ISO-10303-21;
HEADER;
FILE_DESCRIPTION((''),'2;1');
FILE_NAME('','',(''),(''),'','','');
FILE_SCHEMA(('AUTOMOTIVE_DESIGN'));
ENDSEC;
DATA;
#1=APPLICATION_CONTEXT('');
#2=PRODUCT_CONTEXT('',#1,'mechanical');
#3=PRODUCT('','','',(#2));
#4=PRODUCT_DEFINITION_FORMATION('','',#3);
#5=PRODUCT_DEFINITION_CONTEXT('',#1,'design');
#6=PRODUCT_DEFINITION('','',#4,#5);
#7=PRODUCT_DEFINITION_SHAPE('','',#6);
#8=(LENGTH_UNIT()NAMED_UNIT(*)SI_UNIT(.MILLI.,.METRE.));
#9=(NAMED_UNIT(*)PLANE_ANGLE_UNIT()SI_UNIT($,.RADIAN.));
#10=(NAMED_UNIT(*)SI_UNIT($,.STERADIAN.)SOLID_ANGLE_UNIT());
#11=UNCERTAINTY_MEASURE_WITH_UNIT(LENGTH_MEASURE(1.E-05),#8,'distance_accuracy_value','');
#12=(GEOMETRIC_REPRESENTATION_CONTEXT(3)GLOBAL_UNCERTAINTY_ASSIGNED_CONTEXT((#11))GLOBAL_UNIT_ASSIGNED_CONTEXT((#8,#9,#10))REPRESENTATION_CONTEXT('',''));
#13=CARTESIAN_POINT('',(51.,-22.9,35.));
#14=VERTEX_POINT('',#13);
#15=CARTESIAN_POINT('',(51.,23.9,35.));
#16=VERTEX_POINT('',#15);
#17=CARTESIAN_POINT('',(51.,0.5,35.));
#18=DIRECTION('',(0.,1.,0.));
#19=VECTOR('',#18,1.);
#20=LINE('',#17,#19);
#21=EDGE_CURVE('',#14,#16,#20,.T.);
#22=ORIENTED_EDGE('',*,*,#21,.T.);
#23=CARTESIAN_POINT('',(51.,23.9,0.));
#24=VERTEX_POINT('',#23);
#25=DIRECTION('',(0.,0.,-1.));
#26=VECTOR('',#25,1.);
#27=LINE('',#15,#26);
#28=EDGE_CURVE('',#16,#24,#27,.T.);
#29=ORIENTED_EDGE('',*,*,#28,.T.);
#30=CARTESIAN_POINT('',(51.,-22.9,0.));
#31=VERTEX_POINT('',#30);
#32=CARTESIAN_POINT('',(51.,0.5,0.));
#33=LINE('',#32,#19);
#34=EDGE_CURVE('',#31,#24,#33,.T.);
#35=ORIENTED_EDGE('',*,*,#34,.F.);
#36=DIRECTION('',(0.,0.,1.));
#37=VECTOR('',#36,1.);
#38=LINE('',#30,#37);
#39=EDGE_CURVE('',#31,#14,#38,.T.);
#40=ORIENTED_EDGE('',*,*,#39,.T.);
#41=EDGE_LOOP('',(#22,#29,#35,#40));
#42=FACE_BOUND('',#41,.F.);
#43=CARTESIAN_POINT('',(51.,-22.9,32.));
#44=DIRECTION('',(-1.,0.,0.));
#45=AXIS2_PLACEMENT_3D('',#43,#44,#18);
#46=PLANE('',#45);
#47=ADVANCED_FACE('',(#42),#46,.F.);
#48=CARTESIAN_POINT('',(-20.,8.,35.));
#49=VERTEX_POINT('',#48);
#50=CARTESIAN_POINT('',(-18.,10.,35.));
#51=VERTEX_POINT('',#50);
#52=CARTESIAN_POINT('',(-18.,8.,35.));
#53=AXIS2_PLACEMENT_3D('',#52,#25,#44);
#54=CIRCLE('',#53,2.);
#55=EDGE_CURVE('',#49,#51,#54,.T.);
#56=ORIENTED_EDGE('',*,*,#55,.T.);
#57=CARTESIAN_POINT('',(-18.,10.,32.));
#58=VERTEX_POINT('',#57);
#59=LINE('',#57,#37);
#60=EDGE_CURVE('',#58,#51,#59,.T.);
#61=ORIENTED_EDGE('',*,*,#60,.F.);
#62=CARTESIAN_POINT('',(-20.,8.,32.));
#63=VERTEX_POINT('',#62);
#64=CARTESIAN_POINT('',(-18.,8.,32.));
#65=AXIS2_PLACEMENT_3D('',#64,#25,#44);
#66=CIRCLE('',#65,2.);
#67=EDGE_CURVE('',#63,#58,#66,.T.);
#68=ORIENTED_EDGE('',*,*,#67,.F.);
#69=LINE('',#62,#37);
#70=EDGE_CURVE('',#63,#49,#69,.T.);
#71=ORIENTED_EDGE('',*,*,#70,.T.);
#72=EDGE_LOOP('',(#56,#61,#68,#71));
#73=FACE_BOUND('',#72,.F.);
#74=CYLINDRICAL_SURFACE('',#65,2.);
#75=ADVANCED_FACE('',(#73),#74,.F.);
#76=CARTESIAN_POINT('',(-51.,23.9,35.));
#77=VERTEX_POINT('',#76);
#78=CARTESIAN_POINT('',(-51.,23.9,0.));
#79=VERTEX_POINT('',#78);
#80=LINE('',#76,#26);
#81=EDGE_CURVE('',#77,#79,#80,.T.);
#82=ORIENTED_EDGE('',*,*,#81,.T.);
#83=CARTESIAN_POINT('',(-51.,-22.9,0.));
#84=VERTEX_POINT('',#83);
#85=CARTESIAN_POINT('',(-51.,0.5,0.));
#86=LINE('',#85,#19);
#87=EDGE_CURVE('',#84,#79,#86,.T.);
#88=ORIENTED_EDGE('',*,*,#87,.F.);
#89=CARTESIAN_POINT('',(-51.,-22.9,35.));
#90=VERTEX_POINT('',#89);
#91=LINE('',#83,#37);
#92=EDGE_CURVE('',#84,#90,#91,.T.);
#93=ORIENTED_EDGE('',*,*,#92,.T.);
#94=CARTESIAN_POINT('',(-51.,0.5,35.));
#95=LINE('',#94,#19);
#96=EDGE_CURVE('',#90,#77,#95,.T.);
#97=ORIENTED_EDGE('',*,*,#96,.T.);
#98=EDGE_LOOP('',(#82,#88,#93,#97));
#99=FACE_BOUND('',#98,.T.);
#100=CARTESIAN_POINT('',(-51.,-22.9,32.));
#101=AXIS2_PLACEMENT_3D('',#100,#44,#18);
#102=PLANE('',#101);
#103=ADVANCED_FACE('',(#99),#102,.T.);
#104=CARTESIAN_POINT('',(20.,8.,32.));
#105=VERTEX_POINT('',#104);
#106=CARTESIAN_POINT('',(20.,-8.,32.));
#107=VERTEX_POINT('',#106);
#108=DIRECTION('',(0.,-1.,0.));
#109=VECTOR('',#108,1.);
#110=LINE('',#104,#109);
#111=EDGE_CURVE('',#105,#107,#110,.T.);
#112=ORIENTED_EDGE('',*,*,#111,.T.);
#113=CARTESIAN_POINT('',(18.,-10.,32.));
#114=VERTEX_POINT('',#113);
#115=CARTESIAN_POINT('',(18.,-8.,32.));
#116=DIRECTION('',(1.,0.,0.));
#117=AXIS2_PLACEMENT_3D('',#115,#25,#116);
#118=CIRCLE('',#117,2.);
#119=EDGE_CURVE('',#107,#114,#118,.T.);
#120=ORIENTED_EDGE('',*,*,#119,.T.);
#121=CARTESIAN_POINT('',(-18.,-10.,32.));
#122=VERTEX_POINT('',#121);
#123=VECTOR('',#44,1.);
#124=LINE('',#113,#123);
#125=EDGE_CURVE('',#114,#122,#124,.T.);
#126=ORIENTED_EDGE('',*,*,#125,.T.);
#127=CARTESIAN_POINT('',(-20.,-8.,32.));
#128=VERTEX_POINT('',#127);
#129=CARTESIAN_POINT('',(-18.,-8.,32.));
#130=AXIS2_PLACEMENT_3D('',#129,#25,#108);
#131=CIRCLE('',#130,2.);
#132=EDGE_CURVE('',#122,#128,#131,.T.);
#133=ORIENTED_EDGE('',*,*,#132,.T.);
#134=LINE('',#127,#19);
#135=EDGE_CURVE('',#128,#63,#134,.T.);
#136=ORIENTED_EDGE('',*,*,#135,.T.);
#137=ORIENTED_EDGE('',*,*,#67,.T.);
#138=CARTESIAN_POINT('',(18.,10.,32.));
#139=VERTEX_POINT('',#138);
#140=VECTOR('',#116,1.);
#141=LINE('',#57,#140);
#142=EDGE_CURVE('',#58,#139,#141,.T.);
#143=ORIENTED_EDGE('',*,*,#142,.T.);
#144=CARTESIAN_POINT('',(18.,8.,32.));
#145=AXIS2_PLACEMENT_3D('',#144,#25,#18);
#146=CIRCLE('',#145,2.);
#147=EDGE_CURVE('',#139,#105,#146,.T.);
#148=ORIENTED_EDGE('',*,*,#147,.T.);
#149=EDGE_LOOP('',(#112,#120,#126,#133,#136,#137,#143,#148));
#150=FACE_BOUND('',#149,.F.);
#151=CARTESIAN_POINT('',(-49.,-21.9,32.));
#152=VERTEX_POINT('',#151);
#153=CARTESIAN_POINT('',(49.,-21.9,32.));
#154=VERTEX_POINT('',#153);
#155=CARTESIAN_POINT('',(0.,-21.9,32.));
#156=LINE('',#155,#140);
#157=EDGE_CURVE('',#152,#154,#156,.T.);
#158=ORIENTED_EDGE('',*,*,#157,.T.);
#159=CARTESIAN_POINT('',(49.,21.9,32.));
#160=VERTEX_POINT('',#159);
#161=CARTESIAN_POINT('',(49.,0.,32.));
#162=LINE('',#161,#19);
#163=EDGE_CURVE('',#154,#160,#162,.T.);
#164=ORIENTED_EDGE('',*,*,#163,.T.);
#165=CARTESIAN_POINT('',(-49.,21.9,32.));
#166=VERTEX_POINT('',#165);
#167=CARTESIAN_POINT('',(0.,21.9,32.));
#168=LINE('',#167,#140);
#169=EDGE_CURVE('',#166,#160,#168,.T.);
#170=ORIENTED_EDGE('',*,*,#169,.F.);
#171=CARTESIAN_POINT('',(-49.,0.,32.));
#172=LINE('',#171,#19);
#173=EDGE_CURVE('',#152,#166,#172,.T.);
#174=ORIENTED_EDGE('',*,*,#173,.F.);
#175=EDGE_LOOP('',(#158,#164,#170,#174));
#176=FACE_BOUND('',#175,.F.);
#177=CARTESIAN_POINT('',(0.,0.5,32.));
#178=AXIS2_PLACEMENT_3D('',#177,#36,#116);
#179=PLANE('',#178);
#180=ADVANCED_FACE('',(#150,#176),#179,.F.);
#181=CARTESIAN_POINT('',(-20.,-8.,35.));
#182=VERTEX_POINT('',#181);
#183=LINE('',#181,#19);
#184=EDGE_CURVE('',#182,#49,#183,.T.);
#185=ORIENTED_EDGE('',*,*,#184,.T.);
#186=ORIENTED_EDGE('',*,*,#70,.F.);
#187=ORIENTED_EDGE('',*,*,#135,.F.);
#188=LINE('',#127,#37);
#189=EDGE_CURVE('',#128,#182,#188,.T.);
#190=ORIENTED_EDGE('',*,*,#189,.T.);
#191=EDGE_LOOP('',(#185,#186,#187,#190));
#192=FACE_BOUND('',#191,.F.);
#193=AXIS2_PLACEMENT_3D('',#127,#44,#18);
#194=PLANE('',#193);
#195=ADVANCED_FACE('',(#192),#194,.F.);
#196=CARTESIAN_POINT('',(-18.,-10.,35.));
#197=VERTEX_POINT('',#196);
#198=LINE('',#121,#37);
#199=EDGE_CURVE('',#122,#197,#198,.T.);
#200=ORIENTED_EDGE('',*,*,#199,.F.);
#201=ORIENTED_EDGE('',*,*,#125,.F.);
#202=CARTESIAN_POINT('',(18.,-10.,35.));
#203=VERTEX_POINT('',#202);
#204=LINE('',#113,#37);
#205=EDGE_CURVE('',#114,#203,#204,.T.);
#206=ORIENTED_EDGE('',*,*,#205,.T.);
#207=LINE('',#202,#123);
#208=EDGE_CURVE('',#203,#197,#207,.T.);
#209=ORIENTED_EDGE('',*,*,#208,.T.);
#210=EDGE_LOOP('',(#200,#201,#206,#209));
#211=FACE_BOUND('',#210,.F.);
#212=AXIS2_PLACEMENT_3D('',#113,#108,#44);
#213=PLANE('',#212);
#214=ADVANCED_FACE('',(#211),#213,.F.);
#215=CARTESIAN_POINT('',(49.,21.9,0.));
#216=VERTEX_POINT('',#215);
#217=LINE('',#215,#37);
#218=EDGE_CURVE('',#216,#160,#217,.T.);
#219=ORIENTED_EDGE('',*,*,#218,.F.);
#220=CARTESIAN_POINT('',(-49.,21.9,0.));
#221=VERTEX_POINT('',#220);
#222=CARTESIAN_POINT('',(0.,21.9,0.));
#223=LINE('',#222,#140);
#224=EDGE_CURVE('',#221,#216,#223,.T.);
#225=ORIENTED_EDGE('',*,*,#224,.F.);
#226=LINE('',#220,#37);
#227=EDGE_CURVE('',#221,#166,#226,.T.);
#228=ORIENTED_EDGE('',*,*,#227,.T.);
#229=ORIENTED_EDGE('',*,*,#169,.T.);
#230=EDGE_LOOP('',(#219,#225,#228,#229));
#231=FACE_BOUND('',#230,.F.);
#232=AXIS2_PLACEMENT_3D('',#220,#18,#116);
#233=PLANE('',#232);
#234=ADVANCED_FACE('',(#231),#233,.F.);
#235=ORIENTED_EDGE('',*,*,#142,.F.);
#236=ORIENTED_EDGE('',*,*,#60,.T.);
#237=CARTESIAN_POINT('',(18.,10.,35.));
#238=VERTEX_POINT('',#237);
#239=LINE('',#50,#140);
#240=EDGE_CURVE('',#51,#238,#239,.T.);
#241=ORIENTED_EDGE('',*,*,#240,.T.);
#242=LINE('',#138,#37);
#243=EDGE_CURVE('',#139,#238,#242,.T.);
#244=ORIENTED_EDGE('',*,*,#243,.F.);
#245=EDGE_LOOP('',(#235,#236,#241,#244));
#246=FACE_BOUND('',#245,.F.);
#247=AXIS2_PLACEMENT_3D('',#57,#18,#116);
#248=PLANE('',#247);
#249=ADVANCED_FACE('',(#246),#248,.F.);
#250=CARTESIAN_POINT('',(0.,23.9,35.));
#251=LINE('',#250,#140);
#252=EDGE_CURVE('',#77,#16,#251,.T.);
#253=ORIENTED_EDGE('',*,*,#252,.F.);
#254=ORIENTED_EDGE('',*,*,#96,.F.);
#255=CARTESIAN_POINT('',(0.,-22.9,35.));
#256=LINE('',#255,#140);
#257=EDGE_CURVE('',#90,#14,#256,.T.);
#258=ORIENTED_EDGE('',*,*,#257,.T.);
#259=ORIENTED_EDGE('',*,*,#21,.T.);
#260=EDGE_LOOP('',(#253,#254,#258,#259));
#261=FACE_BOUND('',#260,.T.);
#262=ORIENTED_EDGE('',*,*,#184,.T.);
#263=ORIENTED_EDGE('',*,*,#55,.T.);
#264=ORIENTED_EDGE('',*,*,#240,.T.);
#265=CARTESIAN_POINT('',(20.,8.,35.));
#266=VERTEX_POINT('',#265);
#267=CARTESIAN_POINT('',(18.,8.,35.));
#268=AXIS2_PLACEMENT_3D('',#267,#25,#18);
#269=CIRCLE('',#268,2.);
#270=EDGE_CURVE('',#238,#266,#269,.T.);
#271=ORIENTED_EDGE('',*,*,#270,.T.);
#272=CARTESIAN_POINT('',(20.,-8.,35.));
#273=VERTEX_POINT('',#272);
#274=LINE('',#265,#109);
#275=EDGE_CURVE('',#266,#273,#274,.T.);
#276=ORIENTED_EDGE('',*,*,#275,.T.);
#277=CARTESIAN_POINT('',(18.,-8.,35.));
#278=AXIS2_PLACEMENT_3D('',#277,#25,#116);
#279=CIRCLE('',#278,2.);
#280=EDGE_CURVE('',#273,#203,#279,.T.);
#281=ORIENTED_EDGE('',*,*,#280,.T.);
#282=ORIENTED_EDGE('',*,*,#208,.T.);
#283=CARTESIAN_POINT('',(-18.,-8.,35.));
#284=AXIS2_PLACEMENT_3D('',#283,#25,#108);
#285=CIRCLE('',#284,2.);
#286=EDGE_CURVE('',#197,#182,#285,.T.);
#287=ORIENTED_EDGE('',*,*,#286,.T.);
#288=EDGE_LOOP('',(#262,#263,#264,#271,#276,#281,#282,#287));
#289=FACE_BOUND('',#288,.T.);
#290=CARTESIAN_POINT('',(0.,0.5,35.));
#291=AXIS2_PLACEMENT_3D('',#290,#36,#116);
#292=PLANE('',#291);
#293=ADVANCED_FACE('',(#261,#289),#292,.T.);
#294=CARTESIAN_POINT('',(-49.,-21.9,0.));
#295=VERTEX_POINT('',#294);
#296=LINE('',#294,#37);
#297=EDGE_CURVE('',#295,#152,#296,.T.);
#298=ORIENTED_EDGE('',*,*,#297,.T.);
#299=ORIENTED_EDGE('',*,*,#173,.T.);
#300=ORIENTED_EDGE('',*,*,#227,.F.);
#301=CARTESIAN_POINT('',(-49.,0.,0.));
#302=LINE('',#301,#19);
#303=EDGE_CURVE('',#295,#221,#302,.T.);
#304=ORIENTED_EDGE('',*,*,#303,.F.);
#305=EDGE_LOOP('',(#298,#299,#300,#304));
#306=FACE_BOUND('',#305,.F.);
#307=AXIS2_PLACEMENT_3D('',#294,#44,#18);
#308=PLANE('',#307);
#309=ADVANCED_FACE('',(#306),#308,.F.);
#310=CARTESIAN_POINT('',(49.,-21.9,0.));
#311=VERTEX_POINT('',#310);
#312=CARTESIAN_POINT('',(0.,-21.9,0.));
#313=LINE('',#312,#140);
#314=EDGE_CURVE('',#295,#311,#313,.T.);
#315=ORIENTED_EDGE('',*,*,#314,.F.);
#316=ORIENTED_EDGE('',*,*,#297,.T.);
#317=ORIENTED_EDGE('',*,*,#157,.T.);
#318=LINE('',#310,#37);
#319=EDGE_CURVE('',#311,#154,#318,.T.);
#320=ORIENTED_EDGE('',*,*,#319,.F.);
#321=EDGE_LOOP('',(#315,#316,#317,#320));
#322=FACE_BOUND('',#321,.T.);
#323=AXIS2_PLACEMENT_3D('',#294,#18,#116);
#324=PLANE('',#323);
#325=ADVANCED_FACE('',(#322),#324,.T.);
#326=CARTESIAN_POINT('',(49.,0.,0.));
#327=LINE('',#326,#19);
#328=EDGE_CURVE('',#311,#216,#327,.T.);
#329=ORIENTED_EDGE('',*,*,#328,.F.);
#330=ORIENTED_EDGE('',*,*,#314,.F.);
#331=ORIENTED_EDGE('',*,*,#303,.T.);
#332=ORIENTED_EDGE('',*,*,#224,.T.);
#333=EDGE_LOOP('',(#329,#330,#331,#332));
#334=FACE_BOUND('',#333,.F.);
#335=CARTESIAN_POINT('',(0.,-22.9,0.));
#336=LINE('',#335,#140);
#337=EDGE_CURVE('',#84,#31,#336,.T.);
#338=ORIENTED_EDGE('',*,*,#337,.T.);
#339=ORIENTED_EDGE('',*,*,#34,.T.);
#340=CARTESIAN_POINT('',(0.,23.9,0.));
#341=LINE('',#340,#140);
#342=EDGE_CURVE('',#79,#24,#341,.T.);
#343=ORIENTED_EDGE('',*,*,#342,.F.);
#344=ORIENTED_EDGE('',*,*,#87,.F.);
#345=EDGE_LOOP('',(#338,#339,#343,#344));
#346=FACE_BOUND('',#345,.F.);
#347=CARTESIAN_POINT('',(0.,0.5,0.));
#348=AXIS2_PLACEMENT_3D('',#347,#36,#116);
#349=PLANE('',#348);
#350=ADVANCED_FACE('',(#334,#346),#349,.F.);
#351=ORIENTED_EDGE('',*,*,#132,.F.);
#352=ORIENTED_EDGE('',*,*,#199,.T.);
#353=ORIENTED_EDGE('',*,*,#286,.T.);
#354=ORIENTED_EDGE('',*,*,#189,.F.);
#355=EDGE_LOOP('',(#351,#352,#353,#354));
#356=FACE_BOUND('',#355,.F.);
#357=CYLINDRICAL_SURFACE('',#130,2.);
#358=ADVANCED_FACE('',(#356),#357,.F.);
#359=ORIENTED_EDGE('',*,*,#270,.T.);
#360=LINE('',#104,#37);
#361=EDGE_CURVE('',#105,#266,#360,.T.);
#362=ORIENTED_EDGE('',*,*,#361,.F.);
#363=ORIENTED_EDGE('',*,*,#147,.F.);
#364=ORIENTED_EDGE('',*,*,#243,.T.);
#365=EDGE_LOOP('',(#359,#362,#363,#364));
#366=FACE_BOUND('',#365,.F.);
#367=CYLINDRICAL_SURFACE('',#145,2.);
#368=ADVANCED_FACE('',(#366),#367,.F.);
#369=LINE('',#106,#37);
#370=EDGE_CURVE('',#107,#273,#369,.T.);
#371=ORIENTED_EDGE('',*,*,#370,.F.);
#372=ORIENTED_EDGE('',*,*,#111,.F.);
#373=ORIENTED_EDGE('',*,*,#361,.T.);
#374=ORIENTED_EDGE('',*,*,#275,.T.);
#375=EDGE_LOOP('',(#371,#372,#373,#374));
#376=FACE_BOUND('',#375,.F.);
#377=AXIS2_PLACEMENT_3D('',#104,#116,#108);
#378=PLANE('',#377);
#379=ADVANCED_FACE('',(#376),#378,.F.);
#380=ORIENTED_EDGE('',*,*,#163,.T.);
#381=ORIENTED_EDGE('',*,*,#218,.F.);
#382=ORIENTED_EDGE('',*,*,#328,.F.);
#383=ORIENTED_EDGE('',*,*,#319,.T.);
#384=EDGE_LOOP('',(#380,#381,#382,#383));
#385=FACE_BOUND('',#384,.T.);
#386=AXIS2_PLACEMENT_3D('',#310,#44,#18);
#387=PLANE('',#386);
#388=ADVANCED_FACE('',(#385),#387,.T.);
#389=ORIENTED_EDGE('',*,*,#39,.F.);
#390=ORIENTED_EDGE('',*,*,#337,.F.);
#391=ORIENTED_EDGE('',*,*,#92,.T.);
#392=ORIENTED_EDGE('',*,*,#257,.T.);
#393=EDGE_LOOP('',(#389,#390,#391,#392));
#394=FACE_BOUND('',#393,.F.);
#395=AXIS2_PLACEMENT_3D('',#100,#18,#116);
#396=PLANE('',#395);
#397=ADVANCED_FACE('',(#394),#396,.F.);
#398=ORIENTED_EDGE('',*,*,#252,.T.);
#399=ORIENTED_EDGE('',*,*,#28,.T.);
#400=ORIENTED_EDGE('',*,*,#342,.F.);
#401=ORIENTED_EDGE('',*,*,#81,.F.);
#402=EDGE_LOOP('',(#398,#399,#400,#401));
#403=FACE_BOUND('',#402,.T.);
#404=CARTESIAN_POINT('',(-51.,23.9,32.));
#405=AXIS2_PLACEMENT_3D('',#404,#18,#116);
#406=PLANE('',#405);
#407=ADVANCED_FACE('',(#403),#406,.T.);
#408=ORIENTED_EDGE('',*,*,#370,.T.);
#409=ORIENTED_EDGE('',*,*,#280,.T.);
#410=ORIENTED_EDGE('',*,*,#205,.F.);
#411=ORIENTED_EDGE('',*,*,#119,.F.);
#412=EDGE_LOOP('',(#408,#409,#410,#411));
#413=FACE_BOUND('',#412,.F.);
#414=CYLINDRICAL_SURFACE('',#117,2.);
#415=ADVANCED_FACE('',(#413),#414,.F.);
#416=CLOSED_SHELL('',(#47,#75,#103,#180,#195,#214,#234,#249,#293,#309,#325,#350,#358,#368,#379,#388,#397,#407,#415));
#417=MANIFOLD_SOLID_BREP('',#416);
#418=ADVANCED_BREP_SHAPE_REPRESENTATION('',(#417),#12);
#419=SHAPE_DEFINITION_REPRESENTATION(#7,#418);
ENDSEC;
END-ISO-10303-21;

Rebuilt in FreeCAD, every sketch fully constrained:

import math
import FreeCAD as App
import Part
import Sketcher

V = App.Vector


def add_polygon(sketch, points):
    """Adds a closed chain of lines whose ends are joined by coincident constraints."""
    first, n = sketch.GeometryCount, len(points)
    for a, b in zip(points, points[1:] + points[:1]):
        sketch.addGeometry(Part.LineSegment(App.Vector(*a, 0), App.Vector(*b, 0)), False)
    for i in range(n):
        sketch.addConstraint(Sketcher.Constraint("Coincident", first + i, 2, first + (i + 1) % n, 1))

doc = App.newDocument("Part")
params = doc.addObject("Spreadsheet::Sheet", "Params")
for row, (alias, value) in enumerate([
    ("sketch1_width", "102 mm"),
    ("sketch1_width2", "98 mm"),
    ("sketch1_height", "46.8 mm"),
    ("sketch1_height2", "43.8 mm"),
    ("pad1_length", "32 mm"),
    ("sketch2_radius", "2 mm"),
    ("sketch2_width", "102 mm"),
    ("sketch2_width2", "36 mm"),
    ("sketch2_height", "16 mm"),
    ("sketch2_height2", "46.8 mm"),
    ("pad2_length", "3 mm"),
], start=1):
    params.set(f"A{row}", alias)
    params.set(f"B{row}", "=" + value)
    params.setAlias(f"B{row}", alias)

body = doc.addObject("PartDesign::Body", "Body")

# Sketch on XY plane
sketch1 = body.newObject("Sketcher::SketchObject", "Sketch")
sketch1.AttachmentSupport = (doc.getObject("XY_Plane"), [""])
sketch1.MapMode = "FlatFace"
add_polygon(sketch1, [(-51, 23.9), (-51, -22.9), (51, -22.9), (51, 23.9)])  # lines 0-3
add_polygon(sketch1, [(49, -21.9), (-49, -21.9), (-49, 21.9), (49, 21.9)])  # lines 4-7
sketch1.addConstraint([
    Sketcher.Constraint("Vertical", 0),
    Sketcher.Constraint("Horizontal", 1),
    Sketcher.Constraint("Vertical", 2),
    Sketcher.Constraint("Horizontal", 3),
    Sketcher.Constraint("Horizontal", 4),
    Sketcher.Constraint("Vertical", 5),
    Sketcher.Constraint("Horizontal", 6),
    Sketcher.Constraint("Vertical", 7),
    Sketcher.Constraint("Symmetric", 4, 2, 6, 2, -1, 1),
    Sketcher.Constraint("DistanceX", 1, 1, 1, 2, 102.0),
    Sketcher.Constraint("DistanceX", 4, 2, 4, 1, 98.0),
    Sketcher.Constraint("DistanceY", 0, 2, 0, 1, 46.8),
    Sketcher.Constraint("DistanceY", 5, 1, 5, 2, 43.8),
    Sketcher.Constraint("DistanceX", 0, 2, -1, 1, 51.0),
    Sketcher.Constraint("DistanceY", 0, 2, 4, 2, 1.0),
])
sketch1.setExpression("Constraints[17]", "Params.sketch1_width")
sketch1.setExpression("Constraints[18]", "Params.sketch1_width2")
sketch1.setExpression("Constraints[19]", "Params.sketch1_height")
sketch1.setExpression("Constraints[20]", "Params.sketch1_height2")
pad1 = body.newObject("PartDesign::Pad", "Pad")
pad1.Profile = sketch1
pad1.setExpression("Length", "Params.pad1_length")

# Sketch on XY plane
sketch2 = body.newObject("Sketcher::SketchObject", "Sketch001")
sketch2.AttachmentSupport = (doc.getObject("XY_Plane"), [""])
sketch2.MapMode = "FlatFace"
sketch2.AttachmentOffset = App.Placement(V(0, 0, 32), App.Rotation())
add_polygon(sketch2, [(-51, 23.9), (-51, -22.9), (51, -22.9), (51, 23.9)])  # lines 0-3
sketch2.addGeometry(Part.ArcOfCircle(Part.Circle(V(-18, 8, 0), V(0, 0, 1), 2), math.radians(90), math.radians(180)), False)  # 4
sketch2.addGeometry(Part.LineSegment(V(-18, 10, 0), V(18, 10, 0)), False)  # 5
sketch2.addGeometry(Part.ArcOfCircle(Part.Circle(V(18, 8, 0), V(0, 0, 1), 2), math.radians(0), math.radians(90)), False)  # 6
sketch2.addGeometry(Part.LineSegment(V(20, 8, 0), V(20, -8, 0)), False)  # 7
sketch2.addGeometry(Part.ArcOfCircle(Part.Circle(V(18, -8, 0), V(0, 0, 1), 2), math.radians(-90), math.radians(0)), False)  # 8
sketch2.addGeometry(Part.LineSegment(V(18, -10, 0), V(-18, -10, 0)), False)  # 9
sketch2.addGeometry(Part.ArcOfCircle(Part.Circle(V(-18, -8, 0), V(0, 0, 1), 2), math.radians(180), math.radians(270)), False)  # 10
sketch2.addGeometry(Part.LineSegment(V(-20, -8, 0), V(-20, 8, 0)), False)  # 11
sketch2.addConstraint([
    Sketcher.Constraint("Tangent", 4, 1, 5, 1),
    Sketcher.Constraint("Tangent", 5, 2, 6, 2),
    Sketcher.Constraint("Tangent", 6, 1, 7, 1),
    Sketcher.Constraint("Tangent", 7, 2, 8, 2),
    Sketcher.Constraint("Tangent", 8, 1, 9, 1),
    Sketcher.Constraint("Tangent", 9, 2, 10, 2),
    Sketcher.Constraint("Tangent", 10, 1, 11, 1),
    Sketcher.Constraint("Tangent", 11, 2, 4, 2),
    Sketcher.Constraint("Vertical", 0),
    Sketcher.Constraint("Horizontal", 1),
    Sketcher.Constraint("Vertical", 2),
    Sketcher.Constraint("Horizontal", 3),
    Sketcher.Constraint("Horizontal", 5),
    Sketcher.Constraint("Vertical", 7),
    Sketcher.Constraint("Horizontal", 9),
    Sketcher.Constraint("Vertical", 11),
    Sketcher.Constraint("Equal", 4, 6),
    Sketcher.Constraint("Equal", 6, 8),
    Sketcher.Constraint("Equal", 8, 10),
    Sketcher.Constraint("Symmetric", 4, 3, 8, 3, -1, 1),
    Sketcher.Constraint("Radius", 4, 2.0),
    Sketcher.Constraint("DistanceX", 1, 1, 1, 2, 102.0),
    Sketcher.Constraint("DistanceX", 5, 1, 5, 2, 36.0),
    Sketcher.Constraint("DistanceY", 7, 2, 7, 1, 16.0),
    Sketcher.Constraint("DistanceY", 0, 2, 0, 1, 46.8),
    Sketcher.Constraint("DistanceX", 0, 2, -1, 1, 51.0),
    Sketcher.Constraint("DistanceY", 0, 2, -1, 1, 22.9),
])
sketch2.setExpression("Constraints[24]", "Params.sketch2_radius")
sketch2.setExpression("Constraints[25]", "Params.sketch2_width")
sketch2.setExpression("Constraints[26]", "Params.sketch2_width2")
sketch2.setExpression("Constraints[27]", "Params.sketch2_height")
sketch2.setExpression("Constraints[28]", "Params.sketch2_height2")
pad2 = body.newObject("PartDesign::Pad", "Pad001")
pad2.Profile = sketch2
pad2.setExpression("Length", "Params.pad2_length")

doc.recompute()
